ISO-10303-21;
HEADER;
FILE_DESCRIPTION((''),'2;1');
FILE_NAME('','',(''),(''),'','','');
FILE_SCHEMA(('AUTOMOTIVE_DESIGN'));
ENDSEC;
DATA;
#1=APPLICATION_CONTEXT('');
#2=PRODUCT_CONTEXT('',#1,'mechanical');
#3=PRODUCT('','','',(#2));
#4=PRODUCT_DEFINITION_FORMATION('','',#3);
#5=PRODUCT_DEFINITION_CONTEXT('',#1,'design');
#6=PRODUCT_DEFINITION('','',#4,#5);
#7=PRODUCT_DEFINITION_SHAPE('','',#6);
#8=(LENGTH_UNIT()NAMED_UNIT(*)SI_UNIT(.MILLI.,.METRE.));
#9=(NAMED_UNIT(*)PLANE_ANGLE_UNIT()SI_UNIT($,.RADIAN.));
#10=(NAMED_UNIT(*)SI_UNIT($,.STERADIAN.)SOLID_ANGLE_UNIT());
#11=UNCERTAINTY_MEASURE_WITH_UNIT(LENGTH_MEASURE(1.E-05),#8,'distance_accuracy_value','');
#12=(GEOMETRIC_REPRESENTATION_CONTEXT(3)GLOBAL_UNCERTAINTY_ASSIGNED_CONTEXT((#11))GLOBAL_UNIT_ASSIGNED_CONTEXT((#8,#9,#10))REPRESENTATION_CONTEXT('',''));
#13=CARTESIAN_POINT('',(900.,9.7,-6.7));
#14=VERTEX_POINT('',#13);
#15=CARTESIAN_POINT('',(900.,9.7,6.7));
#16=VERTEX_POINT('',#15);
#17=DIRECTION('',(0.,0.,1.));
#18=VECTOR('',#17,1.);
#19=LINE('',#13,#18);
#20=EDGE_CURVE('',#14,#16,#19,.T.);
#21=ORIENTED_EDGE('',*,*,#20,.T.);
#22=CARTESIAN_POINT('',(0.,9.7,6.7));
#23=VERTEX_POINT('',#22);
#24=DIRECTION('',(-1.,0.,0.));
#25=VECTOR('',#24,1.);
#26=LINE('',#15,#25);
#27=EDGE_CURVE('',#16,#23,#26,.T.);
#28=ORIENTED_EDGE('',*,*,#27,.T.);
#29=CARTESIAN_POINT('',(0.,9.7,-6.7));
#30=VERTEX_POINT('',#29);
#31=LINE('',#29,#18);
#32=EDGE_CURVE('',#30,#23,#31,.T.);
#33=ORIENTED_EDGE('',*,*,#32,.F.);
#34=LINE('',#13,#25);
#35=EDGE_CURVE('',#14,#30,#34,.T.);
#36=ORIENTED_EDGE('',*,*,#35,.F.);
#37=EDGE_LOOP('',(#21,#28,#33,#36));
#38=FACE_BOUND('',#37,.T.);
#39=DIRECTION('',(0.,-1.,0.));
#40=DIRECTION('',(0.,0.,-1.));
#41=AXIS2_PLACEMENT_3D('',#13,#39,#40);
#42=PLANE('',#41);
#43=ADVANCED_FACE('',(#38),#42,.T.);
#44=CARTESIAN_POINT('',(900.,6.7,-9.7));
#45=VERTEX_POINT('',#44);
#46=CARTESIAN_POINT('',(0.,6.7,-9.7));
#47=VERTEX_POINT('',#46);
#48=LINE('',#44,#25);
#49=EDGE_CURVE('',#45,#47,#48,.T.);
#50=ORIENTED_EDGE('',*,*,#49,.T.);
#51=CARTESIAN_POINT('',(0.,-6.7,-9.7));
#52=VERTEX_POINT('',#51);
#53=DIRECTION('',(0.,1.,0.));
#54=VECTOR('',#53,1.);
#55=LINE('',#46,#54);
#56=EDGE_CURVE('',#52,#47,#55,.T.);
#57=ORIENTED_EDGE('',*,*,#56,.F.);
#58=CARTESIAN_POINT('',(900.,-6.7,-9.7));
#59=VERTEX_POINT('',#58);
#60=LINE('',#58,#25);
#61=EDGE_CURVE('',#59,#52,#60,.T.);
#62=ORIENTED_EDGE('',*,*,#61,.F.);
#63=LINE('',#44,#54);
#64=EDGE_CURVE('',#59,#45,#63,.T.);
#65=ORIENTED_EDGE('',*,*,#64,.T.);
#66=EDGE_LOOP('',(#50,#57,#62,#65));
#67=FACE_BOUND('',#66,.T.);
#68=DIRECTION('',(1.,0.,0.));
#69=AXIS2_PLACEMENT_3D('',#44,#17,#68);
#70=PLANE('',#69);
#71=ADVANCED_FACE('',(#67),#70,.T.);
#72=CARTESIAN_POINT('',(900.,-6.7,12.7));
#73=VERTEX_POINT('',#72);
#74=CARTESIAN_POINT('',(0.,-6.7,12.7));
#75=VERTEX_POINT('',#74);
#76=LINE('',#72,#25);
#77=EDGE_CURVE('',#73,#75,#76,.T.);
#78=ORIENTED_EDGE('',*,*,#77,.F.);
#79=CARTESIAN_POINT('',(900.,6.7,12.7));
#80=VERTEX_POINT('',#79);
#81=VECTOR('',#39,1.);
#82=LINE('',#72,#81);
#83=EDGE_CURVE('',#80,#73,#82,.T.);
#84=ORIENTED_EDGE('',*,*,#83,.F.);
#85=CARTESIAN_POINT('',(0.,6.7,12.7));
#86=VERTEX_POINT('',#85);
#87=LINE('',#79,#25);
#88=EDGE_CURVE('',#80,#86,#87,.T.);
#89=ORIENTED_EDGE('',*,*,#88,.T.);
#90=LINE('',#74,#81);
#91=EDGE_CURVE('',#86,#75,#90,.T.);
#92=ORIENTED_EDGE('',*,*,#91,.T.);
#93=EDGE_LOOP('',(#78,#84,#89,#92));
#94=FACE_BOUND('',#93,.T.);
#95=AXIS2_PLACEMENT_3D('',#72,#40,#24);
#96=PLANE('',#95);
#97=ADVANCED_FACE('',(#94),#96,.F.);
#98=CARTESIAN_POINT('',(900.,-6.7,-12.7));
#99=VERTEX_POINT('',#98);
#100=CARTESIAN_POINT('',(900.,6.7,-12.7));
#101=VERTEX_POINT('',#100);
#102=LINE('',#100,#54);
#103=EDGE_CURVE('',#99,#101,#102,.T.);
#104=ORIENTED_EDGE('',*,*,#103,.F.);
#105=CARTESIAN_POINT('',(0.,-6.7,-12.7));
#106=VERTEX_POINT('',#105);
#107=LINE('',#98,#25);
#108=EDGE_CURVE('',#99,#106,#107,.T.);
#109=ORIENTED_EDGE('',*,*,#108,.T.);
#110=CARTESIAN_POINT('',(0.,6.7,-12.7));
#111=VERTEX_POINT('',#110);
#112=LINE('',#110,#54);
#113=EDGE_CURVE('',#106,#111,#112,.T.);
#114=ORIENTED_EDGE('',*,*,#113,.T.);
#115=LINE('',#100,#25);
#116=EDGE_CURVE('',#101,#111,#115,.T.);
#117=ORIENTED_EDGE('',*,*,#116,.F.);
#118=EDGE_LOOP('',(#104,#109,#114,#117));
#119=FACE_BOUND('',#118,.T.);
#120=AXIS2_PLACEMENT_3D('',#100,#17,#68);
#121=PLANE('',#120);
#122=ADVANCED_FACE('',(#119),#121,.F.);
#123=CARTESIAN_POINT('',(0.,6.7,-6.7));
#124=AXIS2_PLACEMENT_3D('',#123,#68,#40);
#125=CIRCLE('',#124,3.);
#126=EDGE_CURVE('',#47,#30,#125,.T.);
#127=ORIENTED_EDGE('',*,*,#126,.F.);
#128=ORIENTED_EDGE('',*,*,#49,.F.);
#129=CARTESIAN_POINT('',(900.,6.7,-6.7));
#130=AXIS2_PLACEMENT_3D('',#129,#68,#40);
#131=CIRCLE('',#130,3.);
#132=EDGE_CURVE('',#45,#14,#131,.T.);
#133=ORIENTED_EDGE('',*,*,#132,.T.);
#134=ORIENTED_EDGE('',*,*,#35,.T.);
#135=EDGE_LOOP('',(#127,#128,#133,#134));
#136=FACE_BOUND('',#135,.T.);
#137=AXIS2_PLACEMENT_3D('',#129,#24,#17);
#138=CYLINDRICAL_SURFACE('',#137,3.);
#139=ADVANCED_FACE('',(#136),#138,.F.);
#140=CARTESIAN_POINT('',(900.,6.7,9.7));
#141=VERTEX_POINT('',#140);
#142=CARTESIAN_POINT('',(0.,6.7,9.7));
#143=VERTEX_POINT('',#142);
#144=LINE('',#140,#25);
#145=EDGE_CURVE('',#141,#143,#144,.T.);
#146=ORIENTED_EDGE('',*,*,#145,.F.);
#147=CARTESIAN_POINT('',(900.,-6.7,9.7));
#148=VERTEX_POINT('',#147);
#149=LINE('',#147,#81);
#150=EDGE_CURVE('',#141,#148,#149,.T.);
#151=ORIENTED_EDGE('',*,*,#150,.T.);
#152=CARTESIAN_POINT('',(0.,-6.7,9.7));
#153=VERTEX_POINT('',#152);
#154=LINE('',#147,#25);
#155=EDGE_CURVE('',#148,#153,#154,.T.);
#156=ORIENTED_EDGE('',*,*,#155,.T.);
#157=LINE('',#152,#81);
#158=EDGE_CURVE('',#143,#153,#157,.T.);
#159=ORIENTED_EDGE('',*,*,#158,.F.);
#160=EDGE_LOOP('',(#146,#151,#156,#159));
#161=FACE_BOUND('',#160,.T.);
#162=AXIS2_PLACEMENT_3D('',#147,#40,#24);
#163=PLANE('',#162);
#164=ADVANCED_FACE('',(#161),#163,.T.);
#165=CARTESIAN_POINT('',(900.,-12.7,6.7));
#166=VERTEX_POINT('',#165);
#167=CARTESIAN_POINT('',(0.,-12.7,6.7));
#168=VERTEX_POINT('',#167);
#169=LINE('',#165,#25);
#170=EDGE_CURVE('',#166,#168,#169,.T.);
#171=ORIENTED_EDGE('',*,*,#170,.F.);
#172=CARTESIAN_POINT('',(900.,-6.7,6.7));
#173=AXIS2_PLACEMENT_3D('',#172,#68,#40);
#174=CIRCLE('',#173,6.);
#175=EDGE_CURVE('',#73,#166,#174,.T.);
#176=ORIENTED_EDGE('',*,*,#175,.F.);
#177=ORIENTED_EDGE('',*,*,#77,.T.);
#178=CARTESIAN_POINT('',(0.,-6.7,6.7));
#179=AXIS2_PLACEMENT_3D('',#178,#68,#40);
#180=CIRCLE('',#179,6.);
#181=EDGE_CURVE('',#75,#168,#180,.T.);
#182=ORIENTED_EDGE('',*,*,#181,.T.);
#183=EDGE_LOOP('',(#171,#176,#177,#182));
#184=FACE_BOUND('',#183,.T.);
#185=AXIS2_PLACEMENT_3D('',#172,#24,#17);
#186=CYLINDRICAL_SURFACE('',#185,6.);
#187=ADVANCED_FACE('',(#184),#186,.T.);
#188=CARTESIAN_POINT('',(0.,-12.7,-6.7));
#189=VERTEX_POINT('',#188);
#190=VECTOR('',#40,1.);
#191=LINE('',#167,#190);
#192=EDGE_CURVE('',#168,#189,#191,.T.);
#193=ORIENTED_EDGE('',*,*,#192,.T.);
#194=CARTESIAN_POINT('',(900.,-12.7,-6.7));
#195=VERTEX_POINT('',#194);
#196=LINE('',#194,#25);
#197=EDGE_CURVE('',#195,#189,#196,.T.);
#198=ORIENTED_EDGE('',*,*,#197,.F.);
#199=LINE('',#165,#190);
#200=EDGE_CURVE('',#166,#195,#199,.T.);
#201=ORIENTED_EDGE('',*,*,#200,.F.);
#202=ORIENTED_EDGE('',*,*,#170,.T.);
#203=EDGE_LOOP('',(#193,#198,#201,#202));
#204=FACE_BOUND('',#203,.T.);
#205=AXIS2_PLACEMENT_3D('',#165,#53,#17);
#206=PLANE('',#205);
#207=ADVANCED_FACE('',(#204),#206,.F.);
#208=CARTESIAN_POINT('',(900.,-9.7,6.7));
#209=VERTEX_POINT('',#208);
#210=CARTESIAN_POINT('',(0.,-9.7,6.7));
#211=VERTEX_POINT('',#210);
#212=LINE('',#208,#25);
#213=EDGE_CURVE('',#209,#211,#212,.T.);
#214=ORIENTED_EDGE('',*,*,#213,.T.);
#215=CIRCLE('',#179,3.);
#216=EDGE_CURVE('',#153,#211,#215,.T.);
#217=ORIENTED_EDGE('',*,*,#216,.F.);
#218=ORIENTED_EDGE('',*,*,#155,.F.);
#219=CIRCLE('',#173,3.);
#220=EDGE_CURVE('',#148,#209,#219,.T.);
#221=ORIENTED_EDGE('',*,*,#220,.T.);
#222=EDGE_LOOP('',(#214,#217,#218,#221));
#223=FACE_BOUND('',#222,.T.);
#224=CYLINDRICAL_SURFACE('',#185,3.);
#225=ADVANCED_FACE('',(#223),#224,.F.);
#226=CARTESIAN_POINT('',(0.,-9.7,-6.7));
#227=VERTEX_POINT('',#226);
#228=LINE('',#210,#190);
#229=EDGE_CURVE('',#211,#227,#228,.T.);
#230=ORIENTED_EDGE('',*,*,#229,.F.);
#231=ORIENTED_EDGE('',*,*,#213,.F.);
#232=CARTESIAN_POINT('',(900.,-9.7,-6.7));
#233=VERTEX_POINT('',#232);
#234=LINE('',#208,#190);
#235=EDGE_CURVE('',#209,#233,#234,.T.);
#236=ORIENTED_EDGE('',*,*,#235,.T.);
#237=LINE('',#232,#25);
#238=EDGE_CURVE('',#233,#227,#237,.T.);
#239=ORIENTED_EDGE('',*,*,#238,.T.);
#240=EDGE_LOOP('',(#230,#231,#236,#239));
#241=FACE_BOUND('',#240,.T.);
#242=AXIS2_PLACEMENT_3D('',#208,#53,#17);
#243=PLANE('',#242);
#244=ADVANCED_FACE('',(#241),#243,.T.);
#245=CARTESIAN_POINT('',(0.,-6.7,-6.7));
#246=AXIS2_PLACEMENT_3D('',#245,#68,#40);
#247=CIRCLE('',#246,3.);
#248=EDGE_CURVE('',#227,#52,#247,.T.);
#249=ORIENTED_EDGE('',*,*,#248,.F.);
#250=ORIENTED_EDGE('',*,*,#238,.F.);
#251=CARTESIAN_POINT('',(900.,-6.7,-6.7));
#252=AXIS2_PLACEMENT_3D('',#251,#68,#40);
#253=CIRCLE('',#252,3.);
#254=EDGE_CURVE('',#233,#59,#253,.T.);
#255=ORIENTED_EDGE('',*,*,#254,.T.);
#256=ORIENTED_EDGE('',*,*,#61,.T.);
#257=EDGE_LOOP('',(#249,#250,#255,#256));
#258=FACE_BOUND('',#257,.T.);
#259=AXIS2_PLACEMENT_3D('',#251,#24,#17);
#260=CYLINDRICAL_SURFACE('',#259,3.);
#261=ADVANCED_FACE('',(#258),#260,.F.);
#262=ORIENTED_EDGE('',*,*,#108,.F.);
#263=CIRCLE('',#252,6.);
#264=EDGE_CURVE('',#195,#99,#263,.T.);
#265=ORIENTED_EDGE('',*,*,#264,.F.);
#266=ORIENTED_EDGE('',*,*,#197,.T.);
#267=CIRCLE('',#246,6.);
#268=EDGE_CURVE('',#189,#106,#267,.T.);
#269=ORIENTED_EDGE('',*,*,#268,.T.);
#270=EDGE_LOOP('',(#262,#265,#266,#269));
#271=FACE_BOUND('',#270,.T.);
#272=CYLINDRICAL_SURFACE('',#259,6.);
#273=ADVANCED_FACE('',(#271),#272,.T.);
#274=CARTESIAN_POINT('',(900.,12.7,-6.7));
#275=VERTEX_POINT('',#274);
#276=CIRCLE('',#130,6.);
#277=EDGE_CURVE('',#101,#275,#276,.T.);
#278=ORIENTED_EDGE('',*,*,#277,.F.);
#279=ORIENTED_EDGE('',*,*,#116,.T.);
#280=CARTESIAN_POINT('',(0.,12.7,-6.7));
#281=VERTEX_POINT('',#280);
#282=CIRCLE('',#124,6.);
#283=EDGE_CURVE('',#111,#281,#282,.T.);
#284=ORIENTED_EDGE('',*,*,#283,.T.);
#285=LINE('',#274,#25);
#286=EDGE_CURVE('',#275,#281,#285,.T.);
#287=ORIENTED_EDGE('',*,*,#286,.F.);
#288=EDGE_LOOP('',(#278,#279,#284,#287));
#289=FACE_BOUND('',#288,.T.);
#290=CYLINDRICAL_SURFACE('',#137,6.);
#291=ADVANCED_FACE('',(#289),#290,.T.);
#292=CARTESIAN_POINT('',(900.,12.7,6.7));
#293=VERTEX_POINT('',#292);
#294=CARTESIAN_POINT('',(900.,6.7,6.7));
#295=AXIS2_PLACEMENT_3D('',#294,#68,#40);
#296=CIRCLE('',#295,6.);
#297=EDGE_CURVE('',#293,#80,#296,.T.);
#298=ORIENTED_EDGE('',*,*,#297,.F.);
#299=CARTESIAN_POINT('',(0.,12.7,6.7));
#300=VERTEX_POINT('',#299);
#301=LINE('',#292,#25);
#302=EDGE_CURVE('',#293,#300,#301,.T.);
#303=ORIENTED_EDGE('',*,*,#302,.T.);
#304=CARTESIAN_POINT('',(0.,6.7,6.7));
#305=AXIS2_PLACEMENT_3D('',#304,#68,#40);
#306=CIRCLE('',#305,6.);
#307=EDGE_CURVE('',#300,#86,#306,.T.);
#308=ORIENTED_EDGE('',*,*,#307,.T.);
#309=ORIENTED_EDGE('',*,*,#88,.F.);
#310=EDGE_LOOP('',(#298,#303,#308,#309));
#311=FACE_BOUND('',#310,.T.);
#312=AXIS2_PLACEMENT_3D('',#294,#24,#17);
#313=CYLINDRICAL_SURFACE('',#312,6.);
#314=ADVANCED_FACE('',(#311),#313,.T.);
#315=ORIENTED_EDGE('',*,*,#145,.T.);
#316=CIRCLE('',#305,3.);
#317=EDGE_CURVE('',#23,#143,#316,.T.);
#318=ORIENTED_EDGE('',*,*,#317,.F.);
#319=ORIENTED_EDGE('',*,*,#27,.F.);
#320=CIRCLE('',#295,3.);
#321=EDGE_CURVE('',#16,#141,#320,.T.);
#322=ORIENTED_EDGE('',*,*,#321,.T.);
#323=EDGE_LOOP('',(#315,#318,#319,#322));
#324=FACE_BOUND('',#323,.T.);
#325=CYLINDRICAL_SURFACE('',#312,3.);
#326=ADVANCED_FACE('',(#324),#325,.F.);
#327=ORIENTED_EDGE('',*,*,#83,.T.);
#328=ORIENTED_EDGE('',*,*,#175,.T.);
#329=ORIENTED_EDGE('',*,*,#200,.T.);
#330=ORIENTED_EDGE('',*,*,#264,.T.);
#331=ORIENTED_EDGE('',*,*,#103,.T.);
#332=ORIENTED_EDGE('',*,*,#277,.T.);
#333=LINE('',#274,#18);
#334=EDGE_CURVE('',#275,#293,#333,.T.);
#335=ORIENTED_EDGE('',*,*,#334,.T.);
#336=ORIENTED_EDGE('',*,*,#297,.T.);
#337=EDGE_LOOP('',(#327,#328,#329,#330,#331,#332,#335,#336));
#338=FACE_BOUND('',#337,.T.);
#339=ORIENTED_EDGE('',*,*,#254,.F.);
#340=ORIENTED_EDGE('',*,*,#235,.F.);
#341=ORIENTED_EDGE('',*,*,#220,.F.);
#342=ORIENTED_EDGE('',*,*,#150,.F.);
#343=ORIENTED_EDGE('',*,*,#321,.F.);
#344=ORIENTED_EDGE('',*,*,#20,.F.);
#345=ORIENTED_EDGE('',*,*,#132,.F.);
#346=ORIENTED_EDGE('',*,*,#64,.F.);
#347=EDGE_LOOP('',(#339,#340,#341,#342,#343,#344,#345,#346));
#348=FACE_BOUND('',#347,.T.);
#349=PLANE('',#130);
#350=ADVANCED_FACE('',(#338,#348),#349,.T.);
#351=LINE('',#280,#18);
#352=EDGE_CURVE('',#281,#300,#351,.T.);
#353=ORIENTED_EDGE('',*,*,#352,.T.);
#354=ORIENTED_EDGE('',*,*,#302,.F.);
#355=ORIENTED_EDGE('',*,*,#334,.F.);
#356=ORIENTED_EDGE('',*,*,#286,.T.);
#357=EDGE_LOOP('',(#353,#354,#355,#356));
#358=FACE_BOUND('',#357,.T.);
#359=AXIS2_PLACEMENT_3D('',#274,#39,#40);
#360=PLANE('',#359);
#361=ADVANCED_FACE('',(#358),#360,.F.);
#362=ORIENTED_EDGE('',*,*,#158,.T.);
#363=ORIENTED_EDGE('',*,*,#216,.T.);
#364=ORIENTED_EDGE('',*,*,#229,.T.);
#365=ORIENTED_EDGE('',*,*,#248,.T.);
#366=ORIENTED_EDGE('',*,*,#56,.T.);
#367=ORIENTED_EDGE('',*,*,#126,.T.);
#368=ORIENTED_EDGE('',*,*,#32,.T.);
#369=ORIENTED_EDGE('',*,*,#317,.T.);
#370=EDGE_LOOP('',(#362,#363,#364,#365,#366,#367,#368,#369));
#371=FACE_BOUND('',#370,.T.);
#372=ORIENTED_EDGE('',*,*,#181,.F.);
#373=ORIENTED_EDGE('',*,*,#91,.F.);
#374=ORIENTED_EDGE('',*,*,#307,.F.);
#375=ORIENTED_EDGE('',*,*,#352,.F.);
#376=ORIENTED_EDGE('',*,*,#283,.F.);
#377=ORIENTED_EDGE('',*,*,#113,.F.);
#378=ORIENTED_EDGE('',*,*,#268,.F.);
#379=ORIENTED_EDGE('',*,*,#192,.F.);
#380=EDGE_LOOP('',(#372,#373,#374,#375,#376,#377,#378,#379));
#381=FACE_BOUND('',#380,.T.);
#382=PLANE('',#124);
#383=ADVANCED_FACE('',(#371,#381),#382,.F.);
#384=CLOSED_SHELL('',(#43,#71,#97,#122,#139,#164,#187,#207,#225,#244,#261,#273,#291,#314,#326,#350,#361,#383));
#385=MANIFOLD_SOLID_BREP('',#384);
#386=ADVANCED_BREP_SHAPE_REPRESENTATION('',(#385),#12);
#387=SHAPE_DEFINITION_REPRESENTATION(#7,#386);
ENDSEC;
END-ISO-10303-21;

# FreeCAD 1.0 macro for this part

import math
import FreeCAD as App
import Part
import Sketcher
Q = App.Units.Quantity

doc = App.newDocument("Part")
body = doc.addObject("PartDesign::Body", "Body")

sketch1 = body.newObject("Sketcher::SketchObject", "Sketch")
sketch1.AttachmentSupport = (doc.getObject("YZ_Plane"), [""])
sketch1.MapMode = "FlatFace"
sketch1.addGeometry(Part.LineSegment(App.Vector(-12.7, 6.7, 0), App.Vector(-12.7, -6.7, 0)), False)
sketch1.addGeometry(Part.ArcOfCircle(Part.Circle(App.Vector(-6.7, -6.7, 0), App.Vector(0, 0, 1), 6), math.radians(180), math.radians(270)), False)
sketch1.addGeometry(Part.LineSegment(App.Vector(-6.7, -12.7, 0), App.Vector(6.7, -12.7, 0)), False)
sketch1.addGeometry(Part.ArcOfCircle(Part.Circle(App.Vector(6.7, -6.7, 0), App.Vector(0, 0, 1), 6), math.radians(-90), math.radians(0)), False)
sketch1.addGeometry(Part.LineSegment(App.Vector(12.7, -6.7, 0), App.Vector(12.7, 6.7, 0)), False)
sketch1.addGeometry(Part.ArcOfCircle(Part.Circle(App.Vector(6.7, 6.7, 0), App.Vector(0, 0, 1), 6), math.radians(0), math.radians(90)), False)
sketch1.addGeometry(Part.LineSegment(App.Vector(6.7, 12.7, 0), App.Vector(-6.7, 12.7, 0)), False)
sketch1.addGeometry(Part.ArcOfCircle(Part.Circle(App.Vector(-6.7, 6.7, 0), App.Vector(0, 0, 1), 6), math.radians(90), math.radians(180)), False)
sketch1.addGeometry(Part.LineSegment(App.Vector(-9.7, -6.7, 0), App.Vector(-9.7, 6.7, 0)), False)
sketch1.addGeometry(Part.ArcOfCircle(Part.Circle(App.Vector(-6.7, 6.7, 0), App.Vector(0, 0, 1), 3), math.radians(90), math.radians(180)), False)
sketch1.addGeometry(Part.LineSegment(App.Vector(-6.7, 9.7, 0), App.Vector(6.7, 9.7, 0)), False)
sketch1.addGeometry(Part.ArcOfCircle(Part.Circle(App.Vector(6.7, 6.7, 0), App.Vector(0, 0, 1), 3), math.radians(0), math.radians(90)), False)
sketch1.addGeometry(Part.LineSegment(App.Vector(9.7, 6.7, 0), App.Vector(9.7, -6.7, 0)), False)
sketch1.addGeometry(Part.ArcOfCircle(Part.Circle(App.Vector(6.7, -6.7, 0), App.Vector(0, 0, 1), 3), math.radians(-90), math.radians(0)), False)
sketch1.addGeometry(Part.LineSegment(App.Vector(6.7, -9.7, 0), App.Vector(-6.7, -9.7, 0)), False)
sketch1.addGeometry(Part.ArcOfCircle(Part.Circle(App.Vector(-6.7, -6.7, 0), App.Vector(0, 0, 1), 3), math.radians(180), math.radians(270)), False)
sketch1.addConstraint(Sketcher.Constraint("Tangent", 0, 2, 1, 1))
sketch1.addConstraint(Sketcher.Constraint("Tangent", 1, 2, 2, 1))
sketch1.addConstraint(Sketcher.Constraint("Tangent", 2, 2, 3, 1))
sketch1.addConstraint(Sketcher.Constraint("Tangent", 3, 2, 4, 1))
sketch1.addConstraint(Sketcher.Constraint("Tangent", 4, 2, 5, 1))
sketch1.addConstraint(Sketcher.Constraint("Tangent", 5, 2, 6, 1))
sketch1.addConstraint(Sketcher.Constraint("Tangent", 6, 2, 7, 1))
sketch1.addConstraint(Sketcher.Constraint("Tangent", 7, 2, 0, 1))
sketch1.addConstraint(Sketcher.Constraint("Tangent", 8, 2, 9, 2))
sketch1.addConstraint(Sketcher.Constraint("Tangent", 9, 1, 10, 1))
sketch1.addConstraint(Sketcher.Constraint("Tangent", 10, 2, 11, 2))
sketch1.addConstraint(Sketcher.Constraint("Tangent", 11, 1, 12, 1))
sketch1.addConstraint(Sketcher.Constraint("Tangent", 12, 2, 13, 2))
sketch1.addConstraint(Sketcher.Constraint("Tangent", 13, 1, 14, 1))
sketch1.addConstraint(Sketcher.Constraint("Tangent", 14, 2, 15, 2))
sketch1.addConstraint(Sketcher.Constraint("Tangent", 15, 1, 8, 1))
sketch1.addConstraint(Sketcher.Constraint("Vertical", 0))
sketch1.addConstraint(Sketcher.Constraint("Horizontal", 2))
sketch1.addConstraint(Sketcher.Constraint("Vertical", 4))
sketch1.addConstraint(Sketcher.Constraint("Horizontal", 6))
sketch1.addConstraint(Sketcher.Constraint("Vertical", 8))
sketch1.addConstraint(Sketcher.Constraint("Horizontal", 10))
sketch1.addConstraint(Sketcher.Constraint("Vertical", 12))
sketch1.addConstraint(Sketcher.Constraint("Horizontal", 14))
sketch1.addConstraint(Sketcher.Constraint("Coincident", 9, 3, 7, 3))
sketch1.addConstraint(Sketcher.Constraint("Coincident", 11, 3, 5, 3))
sketch1.addConstraint(Sketcher.Constraint("Coincident", 13, 3, 3, 3))
sketch1.addConstraint(Sketcher.Constraint("Equal", 1, 3))
sketch1.addConstraint(Sketcher.Constraint("Equal", 3, 5))
sketch1.addConstraint(Sketcher.Constraint("Equal", 5, 7))
sketch1.addConstraint(Sketcher.Constraint("Equal", 13, 15))
sketch1.addConstraint(Sketcher.Constraint("Symmetric", 1, 3, 5, 3, -1, 1))
sketch1.addConstraint(Sketcher.Constraint("Equal", 14, 0))
sketch1.addConstraint(Sketcher.Constraint("Radius", 1, Q("6 mm")))
sketch1.addConstraint(Sketcher.Constraint("Radius", 9, Q("3 mm")))
sketch1.addConstraint(Sketcher.Constraint("DistanceX", 2, 1, 2, 2, Q("13.4 mm")))
pad1 = body.newObject("PartDesign::Pad", "Pad")
pad1.Profile = sketch1
pad1.Length = 900

doc.recompute()
